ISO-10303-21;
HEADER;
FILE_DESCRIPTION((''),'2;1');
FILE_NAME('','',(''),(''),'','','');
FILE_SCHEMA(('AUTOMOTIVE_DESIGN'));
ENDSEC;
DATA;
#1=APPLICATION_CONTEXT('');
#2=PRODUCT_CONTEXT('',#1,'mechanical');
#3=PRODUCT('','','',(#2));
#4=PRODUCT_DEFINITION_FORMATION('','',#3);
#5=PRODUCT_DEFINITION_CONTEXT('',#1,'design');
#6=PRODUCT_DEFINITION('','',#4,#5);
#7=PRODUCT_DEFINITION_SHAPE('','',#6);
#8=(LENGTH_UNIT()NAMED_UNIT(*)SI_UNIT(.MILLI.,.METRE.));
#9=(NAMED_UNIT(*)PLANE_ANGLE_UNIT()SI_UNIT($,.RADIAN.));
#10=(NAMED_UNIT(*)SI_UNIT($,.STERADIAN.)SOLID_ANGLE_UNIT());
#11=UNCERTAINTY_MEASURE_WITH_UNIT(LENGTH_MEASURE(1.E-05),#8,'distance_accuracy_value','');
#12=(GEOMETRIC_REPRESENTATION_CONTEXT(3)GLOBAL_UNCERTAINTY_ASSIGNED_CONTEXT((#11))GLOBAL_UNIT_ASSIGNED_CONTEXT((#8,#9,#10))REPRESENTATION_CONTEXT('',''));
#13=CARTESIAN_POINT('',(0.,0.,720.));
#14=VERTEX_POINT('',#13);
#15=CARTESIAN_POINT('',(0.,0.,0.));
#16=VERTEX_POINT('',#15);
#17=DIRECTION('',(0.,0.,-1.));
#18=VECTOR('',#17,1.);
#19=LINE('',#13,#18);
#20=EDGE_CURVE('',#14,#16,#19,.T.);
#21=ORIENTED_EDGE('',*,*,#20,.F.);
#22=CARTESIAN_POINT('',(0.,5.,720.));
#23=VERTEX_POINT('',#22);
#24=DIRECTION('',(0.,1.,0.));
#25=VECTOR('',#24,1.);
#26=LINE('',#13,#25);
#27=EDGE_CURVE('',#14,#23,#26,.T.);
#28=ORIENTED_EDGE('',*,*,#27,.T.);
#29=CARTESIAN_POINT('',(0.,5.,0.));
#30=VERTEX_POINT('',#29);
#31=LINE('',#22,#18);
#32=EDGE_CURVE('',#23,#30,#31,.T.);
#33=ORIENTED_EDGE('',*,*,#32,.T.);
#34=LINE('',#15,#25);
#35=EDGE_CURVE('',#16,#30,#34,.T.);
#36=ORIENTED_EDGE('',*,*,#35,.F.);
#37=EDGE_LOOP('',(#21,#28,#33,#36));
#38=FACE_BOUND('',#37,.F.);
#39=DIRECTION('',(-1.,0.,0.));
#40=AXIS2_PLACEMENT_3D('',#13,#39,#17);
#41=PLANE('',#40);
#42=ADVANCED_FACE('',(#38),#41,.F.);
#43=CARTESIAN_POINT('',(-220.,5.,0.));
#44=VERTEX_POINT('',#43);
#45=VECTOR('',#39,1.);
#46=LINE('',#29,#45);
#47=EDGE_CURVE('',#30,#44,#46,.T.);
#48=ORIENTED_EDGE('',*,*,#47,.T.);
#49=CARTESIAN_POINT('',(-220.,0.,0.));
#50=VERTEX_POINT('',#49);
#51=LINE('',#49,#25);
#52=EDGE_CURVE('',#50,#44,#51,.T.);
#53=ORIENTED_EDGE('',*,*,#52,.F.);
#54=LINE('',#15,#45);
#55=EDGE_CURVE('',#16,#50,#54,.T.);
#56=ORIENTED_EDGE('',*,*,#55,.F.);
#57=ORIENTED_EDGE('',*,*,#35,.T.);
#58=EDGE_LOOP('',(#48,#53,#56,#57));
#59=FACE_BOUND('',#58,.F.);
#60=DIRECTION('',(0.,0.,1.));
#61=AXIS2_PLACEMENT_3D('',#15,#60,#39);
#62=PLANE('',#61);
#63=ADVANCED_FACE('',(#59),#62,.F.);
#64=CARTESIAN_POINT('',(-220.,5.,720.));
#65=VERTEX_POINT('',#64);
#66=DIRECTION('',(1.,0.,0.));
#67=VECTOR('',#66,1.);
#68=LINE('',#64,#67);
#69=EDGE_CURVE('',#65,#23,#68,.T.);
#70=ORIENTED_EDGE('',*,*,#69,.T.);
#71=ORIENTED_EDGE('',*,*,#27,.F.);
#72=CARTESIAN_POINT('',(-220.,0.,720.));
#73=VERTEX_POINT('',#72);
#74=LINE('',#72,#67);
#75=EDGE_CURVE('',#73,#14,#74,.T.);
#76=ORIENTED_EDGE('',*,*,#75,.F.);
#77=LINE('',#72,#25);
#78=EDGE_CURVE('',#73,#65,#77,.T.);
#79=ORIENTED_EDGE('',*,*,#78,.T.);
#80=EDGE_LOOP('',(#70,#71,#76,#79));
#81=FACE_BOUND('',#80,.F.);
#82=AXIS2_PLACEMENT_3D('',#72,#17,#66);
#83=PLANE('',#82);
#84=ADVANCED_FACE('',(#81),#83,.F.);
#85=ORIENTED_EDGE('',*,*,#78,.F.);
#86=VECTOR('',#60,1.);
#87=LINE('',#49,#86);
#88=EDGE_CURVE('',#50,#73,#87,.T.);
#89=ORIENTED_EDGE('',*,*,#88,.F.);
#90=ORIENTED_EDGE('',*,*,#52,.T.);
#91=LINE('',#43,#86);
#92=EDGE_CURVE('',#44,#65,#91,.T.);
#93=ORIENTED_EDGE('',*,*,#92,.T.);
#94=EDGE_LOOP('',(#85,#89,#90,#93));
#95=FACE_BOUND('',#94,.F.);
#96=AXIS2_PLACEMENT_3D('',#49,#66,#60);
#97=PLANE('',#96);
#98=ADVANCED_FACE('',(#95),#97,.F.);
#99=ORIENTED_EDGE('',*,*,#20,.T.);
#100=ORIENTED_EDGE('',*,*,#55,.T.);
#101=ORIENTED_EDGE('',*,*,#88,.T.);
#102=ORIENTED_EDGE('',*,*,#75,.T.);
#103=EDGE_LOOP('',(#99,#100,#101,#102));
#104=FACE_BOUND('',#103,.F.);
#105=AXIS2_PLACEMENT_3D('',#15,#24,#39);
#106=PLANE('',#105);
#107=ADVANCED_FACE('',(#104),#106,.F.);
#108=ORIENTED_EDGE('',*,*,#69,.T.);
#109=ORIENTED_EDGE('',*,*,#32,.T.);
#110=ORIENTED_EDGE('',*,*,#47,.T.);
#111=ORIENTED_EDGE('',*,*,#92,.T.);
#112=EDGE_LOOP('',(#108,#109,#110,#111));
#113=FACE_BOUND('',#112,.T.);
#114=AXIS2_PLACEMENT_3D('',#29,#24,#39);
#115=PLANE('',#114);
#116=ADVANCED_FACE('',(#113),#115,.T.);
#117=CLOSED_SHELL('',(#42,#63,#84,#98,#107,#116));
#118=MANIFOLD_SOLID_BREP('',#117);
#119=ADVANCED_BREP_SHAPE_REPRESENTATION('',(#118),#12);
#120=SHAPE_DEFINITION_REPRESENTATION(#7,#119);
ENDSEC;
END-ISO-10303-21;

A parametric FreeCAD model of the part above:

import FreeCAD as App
import Part
import Sketcher
from FreeCAD import Vector

doc = App.newDocument("Part")
params = doc.addObject("Spreadsheet::Sheet", "Params")
for row, (alias, value) in enumerate([
    ("sketch1_width", "220 mm"),
    ("sketch1_height", "720 mm"),
    ("pad1_length", "5 mm"),
], start=1):
    params.set(f"A{row}", alias)
    params.set(f"B{row}", "=" + value)
    params.setAlias(f"B{row}", alias)

body = doc.addObject("PartDesign::Body", "Body")

# Sketch on XZ plane
sketch1 = doc.addObject("Sketcher::SketchObject", "Sketch")
body.addObject(sketch1)
sketch1.AttachmentSupport = (doc.XZ_Plane, [""])
sketch1.MapMode = "FlatFace"
sketch1.addGeometry(Part.LineSegment(Vector(0, 720, 0), Vector(0, 0, 0)), False)
sketch1.addGeometry(Part.LineSegment(Vector(0, 0, 0), Vector(-220, 0, 0)), False)
sketch1.addGeometry(Part.LineSegment(Vector(-220, 0, 0), Vector(-220, 720, 0)), False)
sketch1.addGeometry(Part.LineSegment(Vector(-220, 720, 0), Vector(0, 720, 0)), False)
sketch1.addConstraint(Sketcher.Constraint("Coincident", 0, 2, 1, 1))
sketch1.addConstraint(Sketcher.Constraint("Coincident", 1, 2, 2, 1))
sketch1.addConstraint(Sketcher.Constraint("Coincident", 2, 2, 3, 1))
sketch1.addConstraint(Sketcher.Constraint("Coincident", 3, 2, 0, 1))
sketch1.addConstraint(Sketcher.Constraint("Vertical", 0))
sketch1.addConstraint(Sketcher.Constraint("Horizontal", 1))
sketch1.addConstraint(Sketcher.Constraint("Vertical", 2))
sketch1.addConstraint(Sketcher.Constraint("Horizontal", 3))
sketch1.addConstraint(Sketcher.Constraint("Coincident", 0, 2, -1, 1))
sketch1.addConstraint(Sketcher.Constraint("DistanceX", 1, 2, 1, 1, 220.0))
sketch1.addConstraint(Sketcher.Constraint("DistanceY", 0, 2, 0, 1, 720.0))
sketch1.setExpression("Constraints[9]", "Params.sketch1_width")
sketch1.setExpression("Constraints[10]", "Params.sketch1_height")
pad1 = doc.addObject("PartDesign::Pad", "Pad")
body.addObject(pad1)
pad1.Profile = sketch1
pad1.setExpression("Length", "Params.pad1_length")
pad1.Reversed = True

doc.recompute()
